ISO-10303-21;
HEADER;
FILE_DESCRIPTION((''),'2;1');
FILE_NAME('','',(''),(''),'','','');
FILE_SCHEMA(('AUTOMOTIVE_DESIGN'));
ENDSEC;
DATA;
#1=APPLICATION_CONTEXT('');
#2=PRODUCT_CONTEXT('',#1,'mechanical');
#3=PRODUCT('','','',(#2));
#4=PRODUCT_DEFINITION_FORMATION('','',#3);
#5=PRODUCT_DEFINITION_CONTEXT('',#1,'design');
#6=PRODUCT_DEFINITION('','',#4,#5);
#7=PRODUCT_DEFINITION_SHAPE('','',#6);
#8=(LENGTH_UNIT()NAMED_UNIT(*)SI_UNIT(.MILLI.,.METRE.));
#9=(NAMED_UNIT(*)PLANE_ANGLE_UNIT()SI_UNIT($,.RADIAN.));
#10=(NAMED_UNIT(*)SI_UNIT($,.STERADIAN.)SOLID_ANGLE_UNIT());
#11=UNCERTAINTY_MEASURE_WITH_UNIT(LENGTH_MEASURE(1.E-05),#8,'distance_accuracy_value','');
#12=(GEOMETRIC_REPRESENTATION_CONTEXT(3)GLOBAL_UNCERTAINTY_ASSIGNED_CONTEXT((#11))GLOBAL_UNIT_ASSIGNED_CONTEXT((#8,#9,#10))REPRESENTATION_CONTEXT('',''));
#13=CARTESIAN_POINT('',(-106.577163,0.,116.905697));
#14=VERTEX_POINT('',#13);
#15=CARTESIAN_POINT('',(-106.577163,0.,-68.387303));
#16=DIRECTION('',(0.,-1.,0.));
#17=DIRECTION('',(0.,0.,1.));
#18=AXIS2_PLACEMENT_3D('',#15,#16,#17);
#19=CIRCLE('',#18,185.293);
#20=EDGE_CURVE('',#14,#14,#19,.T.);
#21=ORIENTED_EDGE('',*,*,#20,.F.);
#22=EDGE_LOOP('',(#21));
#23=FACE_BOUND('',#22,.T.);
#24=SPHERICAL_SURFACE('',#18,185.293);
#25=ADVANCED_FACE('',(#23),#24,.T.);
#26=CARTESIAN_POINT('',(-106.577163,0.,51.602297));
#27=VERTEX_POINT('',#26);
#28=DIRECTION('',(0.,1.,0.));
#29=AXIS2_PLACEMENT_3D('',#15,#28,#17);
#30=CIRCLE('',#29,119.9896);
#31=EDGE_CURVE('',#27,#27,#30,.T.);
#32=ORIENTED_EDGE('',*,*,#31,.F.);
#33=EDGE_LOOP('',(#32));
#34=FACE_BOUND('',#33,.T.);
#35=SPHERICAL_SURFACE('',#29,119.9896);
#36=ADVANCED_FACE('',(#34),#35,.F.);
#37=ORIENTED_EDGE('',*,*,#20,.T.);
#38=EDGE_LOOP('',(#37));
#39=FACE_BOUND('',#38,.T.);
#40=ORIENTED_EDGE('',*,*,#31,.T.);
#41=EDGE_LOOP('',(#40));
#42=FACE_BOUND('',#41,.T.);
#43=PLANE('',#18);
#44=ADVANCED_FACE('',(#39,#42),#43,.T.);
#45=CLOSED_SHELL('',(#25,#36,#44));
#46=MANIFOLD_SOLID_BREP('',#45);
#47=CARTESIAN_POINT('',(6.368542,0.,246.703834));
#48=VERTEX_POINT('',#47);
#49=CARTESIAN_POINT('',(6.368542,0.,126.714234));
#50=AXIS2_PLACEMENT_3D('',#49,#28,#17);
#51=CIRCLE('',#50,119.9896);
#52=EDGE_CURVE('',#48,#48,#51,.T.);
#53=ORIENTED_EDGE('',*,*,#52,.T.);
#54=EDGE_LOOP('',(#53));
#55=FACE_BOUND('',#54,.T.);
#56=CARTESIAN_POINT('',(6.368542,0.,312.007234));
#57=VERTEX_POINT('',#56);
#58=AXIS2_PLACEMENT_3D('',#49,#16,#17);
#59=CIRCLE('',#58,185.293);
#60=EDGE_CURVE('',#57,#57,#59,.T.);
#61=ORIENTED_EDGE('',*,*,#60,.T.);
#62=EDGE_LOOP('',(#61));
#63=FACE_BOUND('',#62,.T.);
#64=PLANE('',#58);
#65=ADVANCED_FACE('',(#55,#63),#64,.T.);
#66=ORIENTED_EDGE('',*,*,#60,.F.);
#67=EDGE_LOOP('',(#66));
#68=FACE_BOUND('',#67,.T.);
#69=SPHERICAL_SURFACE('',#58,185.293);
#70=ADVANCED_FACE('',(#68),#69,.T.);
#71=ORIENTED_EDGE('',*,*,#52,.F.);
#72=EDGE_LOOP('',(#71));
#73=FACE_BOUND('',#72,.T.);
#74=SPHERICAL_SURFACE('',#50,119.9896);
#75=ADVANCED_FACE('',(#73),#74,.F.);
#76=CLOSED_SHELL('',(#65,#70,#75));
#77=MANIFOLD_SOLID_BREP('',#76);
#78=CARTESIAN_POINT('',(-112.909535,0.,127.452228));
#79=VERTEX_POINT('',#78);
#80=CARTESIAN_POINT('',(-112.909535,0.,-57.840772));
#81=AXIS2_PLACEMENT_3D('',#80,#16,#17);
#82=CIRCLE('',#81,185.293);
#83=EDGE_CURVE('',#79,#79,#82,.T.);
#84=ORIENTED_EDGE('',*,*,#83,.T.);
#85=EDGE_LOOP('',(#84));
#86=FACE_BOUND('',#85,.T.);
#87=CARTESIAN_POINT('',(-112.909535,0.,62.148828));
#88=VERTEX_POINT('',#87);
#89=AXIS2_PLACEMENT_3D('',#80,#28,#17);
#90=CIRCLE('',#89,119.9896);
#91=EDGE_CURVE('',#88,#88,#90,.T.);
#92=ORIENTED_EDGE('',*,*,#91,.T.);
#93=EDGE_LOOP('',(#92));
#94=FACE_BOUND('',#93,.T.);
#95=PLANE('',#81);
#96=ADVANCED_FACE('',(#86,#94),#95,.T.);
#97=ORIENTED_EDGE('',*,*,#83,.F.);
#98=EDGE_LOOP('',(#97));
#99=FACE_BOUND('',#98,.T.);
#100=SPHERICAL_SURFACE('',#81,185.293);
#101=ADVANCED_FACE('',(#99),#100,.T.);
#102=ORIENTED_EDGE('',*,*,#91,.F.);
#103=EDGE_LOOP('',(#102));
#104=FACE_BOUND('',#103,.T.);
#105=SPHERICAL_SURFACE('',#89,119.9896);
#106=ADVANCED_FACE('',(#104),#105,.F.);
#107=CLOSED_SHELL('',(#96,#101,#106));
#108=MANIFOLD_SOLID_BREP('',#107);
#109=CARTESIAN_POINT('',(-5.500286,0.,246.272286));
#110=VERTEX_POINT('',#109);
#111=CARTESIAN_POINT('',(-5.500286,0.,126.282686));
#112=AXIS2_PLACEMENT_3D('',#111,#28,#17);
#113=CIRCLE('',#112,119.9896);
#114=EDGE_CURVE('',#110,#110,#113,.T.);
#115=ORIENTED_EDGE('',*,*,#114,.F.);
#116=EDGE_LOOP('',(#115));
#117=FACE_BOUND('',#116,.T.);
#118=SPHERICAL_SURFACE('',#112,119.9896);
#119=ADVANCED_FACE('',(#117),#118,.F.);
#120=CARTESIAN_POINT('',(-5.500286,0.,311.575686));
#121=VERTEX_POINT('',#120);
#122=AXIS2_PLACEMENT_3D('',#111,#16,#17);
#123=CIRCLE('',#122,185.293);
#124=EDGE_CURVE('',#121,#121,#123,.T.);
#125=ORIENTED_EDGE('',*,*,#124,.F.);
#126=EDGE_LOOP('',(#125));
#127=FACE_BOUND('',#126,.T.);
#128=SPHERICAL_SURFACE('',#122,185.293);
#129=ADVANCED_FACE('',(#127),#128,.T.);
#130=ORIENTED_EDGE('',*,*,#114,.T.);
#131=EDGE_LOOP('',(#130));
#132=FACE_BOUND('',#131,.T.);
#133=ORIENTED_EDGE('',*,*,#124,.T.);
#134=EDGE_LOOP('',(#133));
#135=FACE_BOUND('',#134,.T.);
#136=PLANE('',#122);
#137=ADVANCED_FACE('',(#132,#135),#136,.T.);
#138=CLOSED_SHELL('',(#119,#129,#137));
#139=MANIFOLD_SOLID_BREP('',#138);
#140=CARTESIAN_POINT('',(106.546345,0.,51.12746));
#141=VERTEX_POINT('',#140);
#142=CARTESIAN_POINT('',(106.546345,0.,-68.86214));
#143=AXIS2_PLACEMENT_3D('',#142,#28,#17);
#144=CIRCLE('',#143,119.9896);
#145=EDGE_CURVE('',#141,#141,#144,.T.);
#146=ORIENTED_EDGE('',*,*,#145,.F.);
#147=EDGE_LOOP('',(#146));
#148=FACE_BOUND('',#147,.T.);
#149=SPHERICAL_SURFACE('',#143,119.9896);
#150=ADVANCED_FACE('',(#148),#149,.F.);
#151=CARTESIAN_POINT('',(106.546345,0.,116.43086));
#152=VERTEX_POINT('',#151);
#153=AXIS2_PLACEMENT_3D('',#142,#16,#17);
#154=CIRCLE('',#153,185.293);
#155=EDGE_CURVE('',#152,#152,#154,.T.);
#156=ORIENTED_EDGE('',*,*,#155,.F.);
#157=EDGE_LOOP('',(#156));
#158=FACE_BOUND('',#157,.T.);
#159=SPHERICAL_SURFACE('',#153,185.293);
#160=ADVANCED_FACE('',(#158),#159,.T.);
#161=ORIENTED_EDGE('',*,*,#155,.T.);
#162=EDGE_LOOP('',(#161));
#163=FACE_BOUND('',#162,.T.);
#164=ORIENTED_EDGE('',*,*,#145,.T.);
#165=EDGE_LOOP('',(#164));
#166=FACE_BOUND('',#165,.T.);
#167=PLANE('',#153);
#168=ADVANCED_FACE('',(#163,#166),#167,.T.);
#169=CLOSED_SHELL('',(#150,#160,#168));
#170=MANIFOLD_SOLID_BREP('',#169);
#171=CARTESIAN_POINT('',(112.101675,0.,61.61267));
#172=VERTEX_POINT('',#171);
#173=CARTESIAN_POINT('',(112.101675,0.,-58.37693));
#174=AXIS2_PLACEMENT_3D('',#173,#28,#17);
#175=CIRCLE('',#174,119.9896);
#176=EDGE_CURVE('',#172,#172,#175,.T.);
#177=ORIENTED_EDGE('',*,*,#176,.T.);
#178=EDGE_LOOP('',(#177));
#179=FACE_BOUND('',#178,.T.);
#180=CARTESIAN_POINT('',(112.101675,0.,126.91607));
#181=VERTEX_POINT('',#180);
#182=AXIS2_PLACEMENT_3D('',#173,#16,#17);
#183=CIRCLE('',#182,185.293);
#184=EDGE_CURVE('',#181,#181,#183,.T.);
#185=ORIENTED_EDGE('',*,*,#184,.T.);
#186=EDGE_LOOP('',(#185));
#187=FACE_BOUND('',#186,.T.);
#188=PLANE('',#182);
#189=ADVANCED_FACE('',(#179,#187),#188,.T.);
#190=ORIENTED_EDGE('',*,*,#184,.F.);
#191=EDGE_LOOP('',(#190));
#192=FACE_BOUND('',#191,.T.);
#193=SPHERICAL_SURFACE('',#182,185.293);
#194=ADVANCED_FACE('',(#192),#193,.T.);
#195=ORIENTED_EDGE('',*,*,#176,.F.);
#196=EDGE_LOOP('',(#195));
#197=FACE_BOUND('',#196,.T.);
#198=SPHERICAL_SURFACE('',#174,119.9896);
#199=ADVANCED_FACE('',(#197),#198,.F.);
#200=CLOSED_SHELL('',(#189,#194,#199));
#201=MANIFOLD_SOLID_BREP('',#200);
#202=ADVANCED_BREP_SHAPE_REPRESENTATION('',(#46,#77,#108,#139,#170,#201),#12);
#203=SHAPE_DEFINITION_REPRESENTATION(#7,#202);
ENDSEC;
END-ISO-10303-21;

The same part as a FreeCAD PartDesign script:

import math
import FreeCAD as App
import Part
import Sketcher
from FreeCAD import Vector
Q = App.Units.Quantity

doc = App.newDocument("Part")
body = doc.addObject("PartDesign::Body", "Body")

sketch1 = doc.addObject("Sketcher::SketchObject", "Sketch")
body.addObject(sketch1)
sketch1.AttachmentSupport = (doc.XZ_Plane, [""])
sketch1.MapMode = "FlatFace"
sketch1.addGeometry([
    Part.LineSegment(Vector(-106.577163, -253.680303, 0), Vector(-106.577163, -188.376903, 0)),
    Part.ArcOfCircle(Part.Circle(Vector(-106.577163, -68.387303, 0), Vector(0, 0, 1), 119.9896), math.radians(-90), math.radians(90)),
    Part.LineSegment(Vector(-106.577163, 51.602297, 0), Vector(-106.577163, 116.905697, 0)),
    Part.ArcOfCircle(Part.Circle(Vector(-106.577163, -68.387303, 0), Vector(0, 0, 1), 185.293), math.radians(-90), math.radians(90)),
], False)
sketch1.addGeometry(Part.LineSegment(Vector(-106.577163, -253.680303, 0), Vector(-106.577163, 116.905697, 0)), True)
sketch1.addConstraint([
    Sketcher.Constraint("Coincident", 0, 2, 1, 1),
    Sketcher.Constraint("Coincident", 1, 2, 2, 1),
    Sketcher.Constraint("Coincident", 2, 2, 3, 2),
    Sketcher.Constraint("Coincident", 3, 1, 0, 1),
    Sketcher.Constraint("Vertical", 0),
    Sketcher.Constraint("Vertical", 2),
    Sketcher.Constraint("Vertical", 4),
    Sketcher.Constraint("Coincident", 3, 3, 1, 3),
    Sketcher.Constraint("Coincident", 4, 1, 3, 1),
    Sketcher.Constraint("Coincident", 4, 2, 2, 2),
    Sketcher.Constraint("Vertical", 3, 3, 0, 2),
    Sketcher.Constraint("Radius", 1, Q("4.724 in")),
    Sketcher.Constraint("Radius", 3, Q("7.295 in")),
    Sketcher.Constraint("DistanceX", 1, 3, -1, 1, Q("106.577163 mm")),
    Sketcher.Constraint("DistanceY", 1, 3, -1, 1, Q("68.387303 mm")),
])
revolution = doc.addObject("PartDesign::Revolution", "Revolution")
body.addObject(revolution)
revolution.Profile = sketch1
revolution.ReferenceAxis = (sketch1, ["Axis0"])
revolution.Angle = 180
body2 = doc.addObject("PartDesign::Body", "Body001")

sketch2 = doc.addObject("Sketcher::SketchObject", "Sketch001")
body2.addObject(sketch2)
sketch2.AttachmentSupport = (doc.getObject("XZ_Plane001"), [""])
sketch2.MapMode = "FlatFace"
sketch2.addGeometry([
    Part.LineSegment(Vector(106.546345, -254.15514, 0), Vector(106.546345, -188.85174, 0)),
    Part.ArcOfCircle(Part.Circle(Vector(106.546345, -68.86214, 0), Vector(0, 0, 1), 119.9896), math.radians(-90), math.radians(90)),
    Part.LineSegment(Vector(106.546345, 51.12746, 0), Vector(106.546345, 116.43086, 0)),
    Part.ArcOfCircle(Part.Circle(Vector(106.546345, -68.86214, 0), Vector(0, 0, 1), 185.293), math.radians(-90), math.radians(90)),
], False)
sketch2.addGeometry(Part.LineSegment(Vector(106.546345, -254.15514, 0), Vector(106.546345, 116.43086, 0)), True)
sketch2.addConstraint([
    Sketcher.Constraint("Coincident", 0, 2, 1, 1),
    Sketcher.Constraint("Coincident", 1, 2, 2, 1),
    Sketcher.Constraint("Coincident", 2, 2, 3, 2),
    Sketcher.Constraint("Coincident", 3, 1, 0, 1),
    Sketcher.Constraint("Vertical", 0),
    Sketcher.Constraint("Vertical", 2),
    Sketcher.Constraint("Vertical", 4),
    Sketcher.Constraint("Coincident", 3, 3, 1, 3),
    Sketcher.Constraint("Coincident", 4, 1, 3, 1),
    Sketcher.Constraint("Coincident", 4, 2, 2, 2),
    Sketcher.Constraint("Vertical", 3, 3, 0, 2),
    Sketcher.Constraint("Radius", 1, Q("4.724 in")),
    Sketcher.Constraint("Radius", 3, Q("7.295 in")),
    Sketcher.Constraint("DistanceY", 1, 3, -1, 1, Q("68.86214 mm")),
    Sketcher.Constraint("DistanceX", -1, 1, 1, 3, Q("106.546345 mm")),
])
revolution2 = doc.addObject("PartDesign::Revolution", "Revolution001")
body2.addObject(revolution2)
revolution2.Profile = sketch2
revolution2.ReferenceAxis = (sketch2, ["Axis0"])
revolution2.Angle = 180
body3 = doc.addObject("PartDesign::Body", "Body002")

sketch3 = doc.addObject("Sketcher::SketchObject", "Sketch002")
body3.addObject(sketch3)
sketch3.AttachmentSupport = (doc.getObject("XZ_Plane002"), [""])
sketch3.MapMode = "FlatFace"
sketch3.addGeometry([
    Part.LineSegment(Vector(-5.500286, -59.010314, 0), Vector(-5.500286, 6.293086, 0)),
    Part.ArcOfCircle(Part.Circle(Vector(-5.500286, 126.282686, 0), Vector(0, 0, 1), 119.9896), math.radians(-90), math.radians(90)),
    Part.LineSegment(Vector(-5.500286, 246.272286, 0), Vector(-5.500286, 311.575686, 0)),
    Part.ArcOfCircle(Part.Circle(Vector(-5.500286, 126.282686, 0), Vector(0, 0, 1), 185.293), math.radians(-90), math.radians(90)),
], False)
sketch3.addGeometry(Part.LineSegment(Vector(-5.500286, -59.010314, 0), Vector(-5.500286, 311.575686, 0)), True)
sketch3.addConstraint([
    Sketcher.Constraint("Coincident", 0, 2, 1, 1),
    Sketcher.Constraint("Coincident", 1, 2, 2, 1),
    Sketcher.Constraint("Coincident", 2, 2, 3, 2),
    Sketcher.Constraint("Coincident", 3, 1, 0, 1),
    Sketcher.Constraint("Vertical", 0),
    Sketcher.Constraint("Vertical", 2),
    Sketcher.Constraint("Vertical", 4),
    Sketcher.Constraint("Coincident", 3, 3, 1, 3),
    Sketcher.Constraint("Coincident", 4, 1, 3, 1),
    Sketcher.Constraint("Coincident", 4, 2, 2, 2),
    Sketcher.Constraint("Vertical", 3, 3, 0, 2),
    Sketcher.Constraint("Radius", 1, Q("4.724 in")),
    Sketcher.Constraint("Radius", 3, Q("7.295 in")),
    Sketcher.Constraint("DistanceX", 1, 3, -1, 1, Q("5.500286 mm")),
    Sketcher.Constraint("DistanceY", -1, 1, 1, 3, Q("126.282686 mm")),
])
revolution3 = doc.addObject("PartDesign::Revolution", "Revolution002")
body3.addObject(revolution3)
revolution3.Profile = sketch3
revolution3.ReferenceAxis = (sketch3, ["Axis0"])
revolution3.Angle = 180
body4 = doc.addObject("PartDesign::Body", "Body003")

sketch4 = doc.addObject("Sketcher::SketchObject", "Sketch003")
body4.addObject(sketch4)
sketch4.AttachmentSupport = (doc.getObject("XZ_Plane003"), [""])
sketch4.MapMode = "FlatFace"
sketch4.addGeometry([
    Part.LineSegment(Vector(-112.909535, -243.133772, 0), Vector(-112.909535, -177.830372, 0)),
    Part.ArcOfCircle(Part.Circle(Vector(-112.909535, -57.840772, 0), Vector(0, 0, 1), 119.9896), math.radians(-90), math.radians(90)),
    Part.LineSegment(Vector(-112.909535, 62.148828, 0), Vector(-112.909535, 127.452228, 0)),
    Part.ArcOfCircle(Part.Circle(Vector(-112.909535, -57.840772, 0), Vector(0, 0, 1), 185.293), math.radians(-90), math.radians(90)),
], False)
sketch4.addGeometry(Part.LineSegment(Vector(-112.909535, -243.133772, 0), Vector(-112.909535, 127.452228, 0)), True)
sketch4.addConstraint([
    Sketcher.Constraint("Coincident", 0, 2, 1, 1),
    Sketcher.Constraint("Coincident", 1, 2, 2, 1),
    Sketcher.Constraint("Coincident", 2, 2, 3, 2),
    Sketcher.Constraint("Coincident", 3, 1, 0, 1),
    Sketcher.Constraint("Vertical", 0),
    Sketcher.Constraint("Vertical", 2),
    Sketcher.Constraint("Vertical", 4),
    Sketcher.Constraint("Coincident", 3, 3, 1, 3),
    Sketcher.Constraint("Coincident", 4, 1, 3, 1),
    Sketcher.Constraint("Coincident", 4, 2, 2, 2),
    Sketcher.Constraint("Vertical", 3, 3, 0, 2),
    Sketcher.Constraint("Radius", 1, Q("4.724 in")),
    Sketcher.Constraint("Radius", 3, Q("7.295 in")),
    Sketcher.Constraint("DistanceY", 1, 3, -1, 1, Q("57.840772 mm")),
    Sketcher.Constraint("DistanceX", 1, 3, -1, 1, Q("112.909535 mm")),
])
revolution4 = doc.addObject("PartDesign::Revolution", "Revolution003")
body4.addObject(revolution4)
revolution4.Profile = sketch4
revolution4.ReferenceAxis = (sketch4, ["Axis0"])
revolution4.Angle = 180
body5 = doc.addObject("PartDesign::Body", "Body004")

sketch5 = doc.addObject("Sketcher::SketchObject", "Sketch004")
body5.addObject(sketch5)
sketch5.AttachmentSupport = (doc.getObject("XZ_Plane004"), [""])
sketch5.MapMode = "FlatFace"
sketch5.addGeometry([
    Part.LineSegment(Vector(112.101675, -243.66993, 0), Vector(112.101675, -178.36653, 0)),
    Part.ArcOfCircle(Part.Circle(Vector(112.101675, -58.37693, 0), Vector(0, 0, 1), 119.9896), math.radians(-90), math.radians(90)),
    Part.LineSegment(Vector(112.101675, 61.61267, 0), Vector(112.101675, 126.91607, 0)),
    Part.ArcOfCircle(Part.Circle(Vector(112.101675, -58.37693, 0), Vector(0, 0, 1), 185.293), math.radians(-90), math.radians(90)),
], False)
sketch5.addGeometry(Part.LineSegment(Vector(112.101675, -243.66993, 0), Vector(112.101675, 126.91607, 0)), True)
sketch5.addConstraint([
    Sketcher.Constraint("Coincident", 0, 2, 1, 1),
    Sketcher.Constraint("Coincident", 1, 2, 2, 1),
    Sketcher.Constraint("Coincident", 2, 2, 3, 2),
    Sketcher.Constraint("Coincident", 3, 1, 0, 1),
    Sketcher.Constraint("Vertical", 0),
    Sketcher.Constraint("Vertical", 2),
    Sketcher.Constraint("Vertical", 4),
    Sketcher.Constraint("Coincident", 3, 3, 1, 3),
    Sketcher.Constraint("Coincident", 4, 1, 3, 1),
    Sketcher.Constraint("Coincident", 4, 2, 2, 2),
    Sketcher.Constraint("Vertical", 3, 3, 0, 2),
    Sketcher.Constraint("Radius", 1, Q("4.724 in")),
    Sketcher.Constraint("Radius", 3, Q("7.295 in")),
    Sketcher.Constraint("DistanceY", 1, 3, -1, 1, Q("58.37693 mm")),
    Sketcher.Constraint("DistanceX", -1, 1, 1, 3, Q("112.101675 mm")),
])
revolution5 = doc.addObject("PartDesign::Revolution", "Revolution004")
body5.addObject(revolution5)
revolution5.Profile = sketch5
revolution5.ReferenceAxis = (sketch5, ["Axis0"])
revolution5.Angle = 180
body6 = doc.addObject("PartDesign::Body", "Body005")

sketch6 = doc.addObject("Sketcher::SketchObject", "Sketch005")
body6.addObject(sketch6)
sketch6.AttachmentSupport = (doc.getObject("XZ_Plane005"), [""])
sketch6.MapMode = "FlatFace"
sketch6.addGeometry([
    Part.LineSegment(Vector(6.368542, -58.578766, 0), Vector(6.368542, 6.724634, 0)),
    Part.ArcOfCircle(Part.Circle(Vector(6.368542, 126.714234, 0), Vector(0, 0, 1), 119.9896), math.radians(-90), math.radians(90)),
    Part.LineSegment(Vector(6.368542, 246.703834, 0), Vector(6.368542, 312.007234, 0)),
    Part.ArcOfCircle(Part.Circle(Vector(6.368542, 126.714234, 0), Vector(0, 0, 1), 185.293), math.radians(-90), math.radians(90)),
], False)
sketch6.addGeometry(Part.LineSegment(Vector(6.368542, -58.578766, 0), Vector(6.368542, 312.007234, 0)), True)
sketch6.addConstraint([
    Sketcher.Constraint("Coincident", 0, 2, 1, 1),
    Sketcher.Constraint("Coincident", 1, 2, 2, 1),
    Sketcher.Constraint("Coincident", 2, 2, 3, 2),
    Sketcher.Constraint("Coincident", 3, 1, 0, 1),
    Sketcher.Constraint("Vertical", 0),
    Sketcher.Constraint("Vertical", 2),
    Sketcher.Constraint("Vertical", 4),
    Sketcher.Constraint("Coincident", 3, 3, 1, 3),
    Sketcher.Constraint("Coincident", 4, 1, 3, 1),
    Sketcher.Constraint("Coincident", 4, 2, 2, 2),
    Sketcher.Constraint("Vertical", 3, 3, 0, 2),
    Sketcher.Constraint("Radius", 1, Q("4.724 in")),
    Sketcher.Constraint("Radius", 3, Q("7.295 in")),
    Sketcher.Constraint("DistanceX", -1, 1, 1, 3, Q("6.368542 mm")),
    Sketcher.Constraint("DistanceY", -1, 1, 1, 3, Q("126.714234 mm")),
])
revolution6 = doc.addObject("PartDesign::Revolution", "Revolution005")
body6.addObject(revolution6)
revolution6.Profile = sketch6
revolution6.ReferenceAxis = (sketch6, ["Axis0"])
revolution6.Angle = 180

doc.recompute()
